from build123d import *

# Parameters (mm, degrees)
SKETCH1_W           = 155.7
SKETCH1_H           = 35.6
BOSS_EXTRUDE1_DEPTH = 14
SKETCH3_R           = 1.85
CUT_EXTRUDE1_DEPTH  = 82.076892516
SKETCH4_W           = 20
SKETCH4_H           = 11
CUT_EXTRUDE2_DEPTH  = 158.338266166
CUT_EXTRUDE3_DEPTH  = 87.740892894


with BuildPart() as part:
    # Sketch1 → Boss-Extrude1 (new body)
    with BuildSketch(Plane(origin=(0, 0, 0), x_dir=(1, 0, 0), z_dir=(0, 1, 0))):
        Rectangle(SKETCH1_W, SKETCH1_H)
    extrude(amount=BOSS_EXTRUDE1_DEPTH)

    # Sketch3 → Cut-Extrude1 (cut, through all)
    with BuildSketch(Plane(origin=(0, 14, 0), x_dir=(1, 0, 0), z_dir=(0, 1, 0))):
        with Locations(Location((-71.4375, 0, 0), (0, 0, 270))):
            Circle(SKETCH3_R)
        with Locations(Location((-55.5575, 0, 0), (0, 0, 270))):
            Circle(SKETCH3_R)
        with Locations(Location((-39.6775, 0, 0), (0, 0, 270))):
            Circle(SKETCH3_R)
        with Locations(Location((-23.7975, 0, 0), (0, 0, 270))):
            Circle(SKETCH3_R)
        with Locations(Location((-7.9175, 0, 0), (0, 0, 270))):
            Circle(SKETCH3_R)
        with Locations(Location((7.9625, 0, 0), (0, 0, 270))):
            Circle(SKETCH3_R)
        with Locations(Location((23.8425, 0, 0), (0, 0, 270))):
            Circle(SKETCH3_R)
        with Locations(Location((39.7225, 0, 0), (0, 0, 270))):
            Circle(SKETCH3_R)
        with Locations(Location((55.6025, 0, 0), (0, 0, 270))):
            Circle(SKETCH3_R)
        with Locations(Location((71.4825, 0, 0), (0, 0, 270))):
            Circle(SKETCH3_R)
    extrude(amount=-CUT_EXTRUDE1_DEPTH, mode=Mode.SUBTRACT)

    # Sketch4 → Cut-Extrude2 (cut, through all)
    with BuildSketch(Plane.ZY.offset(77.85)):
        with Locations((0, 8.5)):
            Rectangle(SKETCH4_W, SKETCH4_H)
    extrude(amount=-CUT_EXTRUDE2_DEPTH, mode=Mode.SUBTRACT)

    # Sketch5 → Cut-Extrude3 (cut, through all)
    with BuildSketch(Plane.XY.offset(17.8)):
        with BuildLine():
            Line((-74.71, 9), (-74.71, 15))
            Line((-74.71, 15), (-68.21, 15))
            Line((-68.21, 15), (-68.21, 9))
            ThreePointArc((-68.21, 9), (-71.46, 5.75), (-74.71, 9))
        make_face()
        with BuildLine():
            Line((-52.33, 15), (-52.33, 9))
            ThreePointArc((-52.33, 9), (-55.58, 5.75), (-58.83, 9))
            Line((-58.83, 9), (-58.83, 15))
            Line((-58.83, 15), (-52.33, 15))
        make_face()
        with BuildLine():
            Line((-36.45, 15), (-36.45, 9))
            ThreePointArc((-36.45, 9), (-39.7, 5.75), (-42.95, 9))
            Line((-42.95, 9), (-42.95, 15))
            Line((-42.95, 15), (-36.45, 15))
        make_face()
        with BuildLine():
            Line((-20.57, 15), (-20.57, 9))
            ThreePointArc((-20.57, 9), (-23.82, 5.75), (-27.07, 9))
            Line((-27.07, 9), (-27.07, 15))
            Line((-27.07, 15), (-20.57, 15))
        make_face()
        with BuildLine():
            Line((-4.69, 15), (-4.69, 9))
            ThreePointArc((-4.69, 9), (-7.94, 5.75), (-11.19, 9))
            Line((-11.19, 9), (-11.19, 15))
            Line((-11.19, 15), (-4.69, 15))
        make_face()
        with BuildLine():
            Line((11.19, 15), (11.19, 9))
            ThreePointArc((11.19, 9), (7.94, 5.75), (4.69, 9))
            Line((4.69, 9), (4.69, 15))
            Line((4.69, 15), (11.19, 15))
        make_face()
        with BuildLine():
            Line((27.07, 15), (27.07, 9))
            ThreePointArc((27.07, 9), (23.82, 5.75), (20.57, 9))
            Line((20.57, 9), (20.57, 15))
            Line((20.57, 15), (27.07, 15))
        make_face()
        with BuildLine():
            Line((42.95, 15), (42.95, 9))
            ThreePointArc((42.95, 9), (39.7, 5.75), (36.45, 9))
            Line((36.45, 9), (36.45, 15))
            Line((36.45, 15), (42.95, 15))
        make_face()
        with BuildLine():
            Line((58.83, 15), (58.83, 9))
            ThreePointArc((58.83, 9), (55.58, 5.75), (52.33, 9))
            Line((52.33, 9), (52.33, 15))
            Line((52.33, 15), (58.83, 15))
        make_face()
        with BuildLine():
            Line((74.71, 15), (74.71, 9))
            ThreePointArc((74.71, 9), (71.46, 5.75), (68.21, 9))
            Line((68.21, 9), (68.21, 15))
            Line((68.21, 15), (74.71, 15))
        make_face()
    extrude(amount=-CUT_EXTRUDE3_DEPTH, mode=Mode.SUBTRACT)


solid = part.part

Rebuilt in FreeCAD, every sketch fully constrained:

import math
import FreeCAD as App
import Part
import Sketcher

V = App.Vector
Q = App.Units.Quantity

doc = App.newDocument("Part")
body = doc.addObject("PartDesign::Body", "Body")

sketch1 = body.newObject("Sketcher::SketchObject", "Sketch")
sketch1.AttachmentSupport = (doc.getObject("XZ_Plane"), [""])
sketch1.MapMode = "FlatFace"
sketch1.addGeometry(Part.LineSegment(V(-78, -18, 0), V(-78, 18, 0)), False)
sketch1.addGeometry(Part.LineSegment(V(-78, 18, 0), V(78, 18, 0)), False)
sketch1.addGeometry(Part.LineSegment(V(78, 18, 0), V(78, -18, 0)), False)
sketch1.addGeometry(Part.LineSegment(V(78, -18, 0), V(-78, -18, 0)), False)
sketch1.addConstraint(Sketcher.Constraint("Coincident", 0, 2, 1, 1))
sketch1.addConstraint(Sketcher.Constraint("Coincident", 1, 2, 2, 1))
sketch1.addConstraint(Sketcher.Constraint("Coincident", 2, 2, 3, 1))
sketch1.addConstraint(Sketcher.Constraint("Coincident", 3, 2, 0, 1))
sketch1.addConstraint(Sketcher.Constraint("Vertical", 0))
sketch1.addConstraint(Sketcher.Constraint("Horizontal", 1))
sketch1.addConstraint(Sketcher.Constraint("Vertical", 2))
sketch1.addConstraint(Sketcher.Constraint("Horizontal", 3))
sketch1.addConstraint(Sketcher.Constraint("Symmetric", 0, 2, 2, 2, -1, 1))
sketch1.addConstraint(Sketcher.Constraint("DistanceX", 1, 1, 1, 2, Q("155.7 mm")))
sketch1.addConstraint(Sketcher.Constraint("DistanceY", 0, 1, 0, 2, Q("35.6 mm")))
pad1 = body.newObject("PartDesign::Pad", "Pad")
pad1.Profile = sketch1
pad1.Length = 14
pad1.Reversed = True

sketch2 = body.newObject("Sketcher::SketchObject", "Sketch001")
sketch2.AttachmentSupport = (doc.getObject("XZ_Plane"), [""])
sketch2.MapMode = "FlatFace"
sketch2.AttachmentOffset = App.Placement(V(0, 0, -14), App.Rotation())
sketch2.addGeometry(Part.Circle(V(-71.4, 0, 0), V(0, 0, 1), 1.9), False)
sketch2.addGeometry(Part.Circle(V(-55.6, 0, 0), V(0, 0, 1), 1.9), False)
sketch2.addGeometry(Part.Circle(V(-39.7, 0, 0), V(0, 0, 1), 1.9), False)
sketch2.addGeometry(Part.Circle(V(-23.8, 0, 0), V(0, 0, 1), 1.9), False)
sketch2.addGeometry(Part.Circle(V(-7.9, 0, 0), V(0, 0, 1), 1.9), False)
sketch2.addGeometry(Part.Circle(V(8, 0, 0), V(0, 0, 1), 1.9), False)
sketch2.addGeometry(Part.Circle(V(23.8, 0, 0), V(0, 0, 1), 1.9), False)
sketch2.addGeometry(Part.Circle(V(39.7, 0, 0), V(0, 0, 1), 1.9), False)
sketch2.addGeometry(Part.Circle(V(55.6, 0, 0), V(0, 0, 1), 1.9), False)
sketch2.addGeometry(Part.Circle(V(71.5, 0, 0), V(0, 0, 1), 1.9), False)
sketch2.addConstraint(Sketcher.Constraint("Equal", 0, 1))
sketch2.addConstraint(Sketcher.Constraint("Equal", 1, 2))
sketch2.addConstraint(Sketcher.Constraint("Equal", 2, 3))
sketch2.addConstraint(Sketcher.Constraint("Equal", 3, 4))
sketch2.addConstraint(Sketcher.Constraint("Equal", 4, 5))
sketch2.addConstraint(Sketcher.Constraint("Equal", 5, 6))
sketch2.addConstraint(Sketcher.Constraint("Equal", 6, 7))
sketch2.addConstraint(Sketcher.Constraint("Equal", 7, 8))
sketch2.addConstraint(Sketcher.Constraint("Equal", 8, 9))
sketch2.addConstraint(Sketcher.Constraint("PointOnObject", 0, 3, -1))
sketch2.addConstraint(Sketcher.Constraint("PointOnObject", 1, 3, -1))
sketch2.addConstraint(Sketcher.Constraint("PointOnObject", 2, 3, -1))
sketch2.addConstraint(Sketcher.Constraint("PointOnObject", 3, 3, -1))
sketch2.addConstraint(Sketcher.Constraint("PointOnObject", 4, 3, -1))
sketch2.addConstraint(Sketcher.Constraint("PointOnObject", 5, 3, -1))
sketch2.addConstraint(Sketcher.Constraint("PointOnObject", 6, 3, -1))
sketch2.addConstraint(Sketcher.Constraint("PointOnObject", 7, 3, -1))
sketch2.addConstraint(Sketcher.Constraint("PointOnObject", 8, 3, -1))
sketch2.addConstraint(Sketcher.Constraint("PointOnObject", 9, 3, -1))
sketch2.addConstraint(Sketcher.Constraint("Diameter", 0, Q("3.7 mm")))
sketch2.addConstraint(Sketcher.Constraint("DistanceX", 0, 3, 5, 3, Q("79.4 mm")))
sketch2.addConstraint(Sketcher.Constraint("DistanceX", 1, 3, 6, 3, Q("79.4 mm")))
sketch2.addConstraint(Sketcher.Constraint("DistanceX", 2, 3, 7, 3, Q("79.4 mm")))
sketch2.addConstraint(Sketcher.Constraint("DistanceX", 3, 3, 8, 3, Q("79.4 mm")))
sketch2.addConstraint(Sketcher.Constraint("DistanceX", 4, 3, 9, 3, Q("79.4 mm")))
sketch2.addConstraint(Sketcher.Constraint("DistanceX", 0, 3, 1, 3, Q("15.88 mm")))
sketch2.addConstraint(Sketcher.Constraint("DistanceX", 1, 3, 2, 3, Q("15.88 mm")))
sketch2.addConstraint(Sketcher.Constraint("DistanceX", 2, 3, 3, 3, Q("15.88 mm")))
sketch2.addConstraint(Sketcher.Constraint("DistanceX", 3, 3, 4, 3, Q("15.88 mm")))
sketch2.addConstraint(Sketcher.Constraint("DistanceX", 0, 3, -1, 1, Q("71.4375 mm")))
pocket1 = body.newObject("PartDesign::Pocket", "Pocket")
pocket1.Profile = sketch2
pocket1.Type = "ThroughAll"
pocket1.Reversed = True

sketch3 = body.newObject("Sketcher::SketchObject", "Sketch002")
sketch3.AttachmentSupport = (doc.getObject("YZ_Plane"), [""])
sketch3.MapMode = "FlatFace"
sketch3.AttachmentOffset = App.Placement(V(0, 0, -77.85), App.Rotation())
sketch3.addGeometry(Part.LineSegment(V(14, -10, 0), V(3, -10, 0)), False)
sketch3.addGeometry(Part.LineSegment(V(3, -10, 0), V(3, 10, 0)), False)
sketch3.addGeometry(Part.LineSegment(V(3, 10, 0), V(14, 10, 0)), False)
sketch3.addGeometry(Part.LineSegment(V(14, 10, 0), V(14, -10, 0)), False)
sketch3.addConstraint(Sketcher.Constraint("Coincident", 0, 2, 1, 1))
sketch3.addConstraint(Sketcher.Constraint("Coincident", 1, 2, 2, 1))
sketch3.addConstraint(Sketcher.Constraint("Coincident", 2, 2, 3, 1))
sketch3.addConstraint(Sketcher.Constraint("Coincident", 3, 2, 0, 1))
sketch3.addConstraint(Sketcher.Constraint("Horizontal", 0))
sketch3.addConstraint(Sketcher.Constraint("Vertical", 1))
sketch3.addConstraint(Sketcher.Constraint("Horizontal", 2))
sketch3.addConstraint(Sketcher.Constraint("Vertical", 3))
sketch3.addConstraint(Sketcher.Constraint("DistanceX", 0, 2, 0, 1, Q("11 mm")))
sketch3.addConstraint(Sketcher.Constraint("DistanceY", 1, 1, 1, 2, Q("20 mm")))
sketch3.addConstraint(Sketcher.Constraint("DistanceX", -1, 1, 0, 2, Q("3 mm")))
sketch3.addConstraint(Sketcher.Constraint("DistanceY", 0, 2, -1, 1, Q("10 mm")))
pocket2 = body.newObject("PartDesign::Pocket", "Pocket001")
pocket2.Profile = sketch3
pocket2.Type = "ThroughAll"
pocket2.Reversed = True

sketch4 = body.newObject("Sketcher::SketchObject", "Sketch003")
sketch4.AttachmentSupport = (doc.getObject("XY_Plane"), [""])
sketch4.MapMode = "FlatFace"
sketch4.AttachmentOffset = App.Placement(V(0, 0, 17.8), App.Rotation())
sketch4.addGeometry(Part.LineSegment(V(-74.7, 15, 0), V(-74.7, 9, 0)), False)
sketch4.addGeometry(Part.ArcOfCircle(Part.Circle(V(-71.5, 9, 0), V(0, 0, 1), 3.2), math.radians(180), math.radians(360)), False)
sketch4.addGeometry(Part.LineSegment(V(-68.2, 9, 0), V(-68.2, 15, 0)), False)
sketch4.addGeometry(Part.LineSegment(V(-68.2, 15, 0), V(-74.7, 15, 0)), False)
sketch4.addGeometry(Part.LineSegment(V(-52.3, 9, 0), V(-52.3, 15, 0)), False)
sketch4.addGeometry(Part.LineSegment(V(-52.3, 15, 0), V(-58.8, 15, 0)), False)
sketch4.addGeometry(Part.LineSegment(V(-58.8, 15, 0), V(-58.8, 9, 0)), False)
sketch4.addGeometry(Part.ArcOfCircle(Part.Circle(V(-55.6, 9, 0), V(0, 0, 1), 3.2), math.radians(180), math.radians(360)), False)
sketch4.addGeometry(Part.LineSegment(V(-36.5, 9, 0), V(-36.5, 15, 0)), False)
sketch4.addGeometry(Part.LineSegment(V(-36.5, 15, 0), V(-43, 15, 0)), False)
sketch4.addGeometry(Part.LineSegment(V(-43, 15, 0), V(-43, 9, 0)), False)
sketch4.addGeometry(Part.ArcOfCircle(Part.Circle(V(-39.7, 9, 0), V(0, 0, 1), 3.2), math.radians(180), math.radians(360)), False)
sketch4.addGeometry(Part.LineSegment(V(-20.6, 9, 0), V(-20.6, 15, 0)), False)
sketch4.addGeometry(Part.LineSegment(V(-20.6, 15, 0), V(-27.1, 15, 0)), False)
sketch4.addGeometry(Part.LineSegment(V(-27.1, 15, 0), V(-27.1, 9, 0)), False)
sketch4.addGeometry(Part.ArcOfCircle(Part.Circle(V(-23.8, 9, 0), V(0, 0, 1), 3.2), math.radians(180), math.radians(360)), False)
sketch4.addGeometry(Part.LineSegment(V(-4.7, 9, 0), V(-4.7, 15, 0)), False)
sketch4.addGeometry(Part.LineSegment(V(-4.7, 15, 0), V(-11.2, 15, 0)), False)
sketch4.addGeometry(Part.LineSegment(V(-11.2, 15, 0), V(-11.2, 9, 0)), False)
sketch4.addGeometry(Part.ArcOfCircle(Part.Circle(V(-7.9, 9, 0), V(0, 0, 1), 3.2), math.radians(180), math.radians(360)), False)
sketch4.addGeometry(Part.LineSegment(V(11.2, 9, 0), V(11.2, 15, 0)), False)
sketch4.addGeometry(Part.LineSegment(V(11.2, 15, 0), V(4.7, 15, 0)), False)
sketch4.addGeometry(Part.LineSegment(V(4.7, 15, 0), V(4.7, 9, 0)), False)
sketch4.addGeometry(Part.ArcOfCircle(Part.Circle(V(7.9, 9, 0), V(0, 0, 1), 3.2), math.radians(180), math.radians(360)), False)
sketch4.addGeometry(Part.LineSegment(V(27.1, 9, 0), V(27.1, 15, 0)), False)
sketch4.addGeometry(Part.LineSegment(V(27.1, 15, 0), V(20.6, 15, 0)), False)
sketch4.addGeometry(Part.LineSegment(V(20.6, 15, 0), V(20.6, 9, 0)), False)
sketch4.addGeometry(Part.ArcOfCircle(Part.Circle(V(23.8, 9, 0), V(0, 0, 1), 3.2), math.radians(180), math.radians(360)), False)
sketch4.addGeometry(Part.LineSegment(V(43, 9, 0), V(43, 15, 0)), False)
sketch4.addGeometry(Part.LineSegment(V(43, 15, 0), V(36.5, 15, 0)), False)
sketch4.addGeometry(Part.LineSegment(V(36.5, 15, 0), V(36.5, 9, 0)), False)
sketch4.addGeometry(Part.ArcOfCircle(Part.Circle(V(39.7, 9, 0), V(0, 0, 1), 3.2), math.radians(180), math.radians(360)), False)
sketch4.addGeometry(Part.LineSegment(V(58.8, 9, 0), V(58.8, 15, 0)), False)
sketch4.addGeometry(Part.LineSegment(V(58.8, 15, 0), V(52.3, 15, 0)), False)
sketch4.addGeometry(Part.LineSegment(V(52.3, 15, 0), V(52.3, 9, 0)), False)
sketch4.addGeometry(Part.ArcOfCircle(Part.Circle(V(55.6, 9, 0), V(0, 0, 1), 3.2), math.radians(180), math.radians(360)), False)
sketch4.addGeometry(Part.LineSegment(V(74.7, 9, 0), V(74.7, 15, 0)), False)
sketch4.addGeometry(Part.LineSegment(V(74.7, 15, 0), V(68.2, 15, 0)), False)
sketch4.addGeometry(Part.LineSegment(V(68.2, 15, 0), V(68.2, 9, 0)), False)
sketch4.addGeometry(Part.ArcOfCircle(Part.Circle(V(71.5, 9, 0), V(0, 0, 1), 3.2), math.radians(180), math.radians(360)), False)
sketch4.addConstraint(Sketcher.Constraint("Tangent", 0, 2, 1, 1))
sketch4.addConstraint(Sketcher.Constraint("Tangent", 1, 2, 2, 1))
sketch4.addConstraint(Sketcher.Constraint("Coincident", 2, 2, 3, 1))
sketch4.addConstraint(Sketcher.Constraint("Coincident", 3, 2, 0, 1))
sketch4.addConstraint(Sketcher.Constraint("Coincident", 4, 2, 5, 1))
sketch4.addConstraint(Sketcher.Constraint("Coincident", 5, 2, 6, 1))
sketch4.addConstraint(Sketcher.Constraint("Tangent", 6, 2, 7, 1))
sketch4.addConstraint(Sketcher.Constraint("Tangent", 7, 2, 4, 1))
sketch4.addConstraint(Sketcher.Constraint("Coincident", 8, 2, 9, 1))
sketch4.addConstraint(Sketcher.Constraint("Coincident", 9, 2, 10, 1))
sketch4.addConstraint(Sketcher.Constraint("Tangent", 10, 2, 11, 1))
sketch4.addConstraint(Sketcher.Constraint("Tangent", 11, 2, 8, 1))
sketch4.addConstraint(Sketcher.Constraint("Coincident", 12, 2, 13, 1))
sketch4.addConstraint(Sketcher.Constraint("Coincident", 13, 2, 14, 1))
sketch4.addConstraint(Sketcher.Constraint("Tangent", 14, 2, 15, 1))
sketch4.addConstraint(Sketcher.Constraint("Tangent", 15, 2, 12, 1))
sketch4.addConstraint(Sketcher.Constraint("Coincident", 16, 2, 17, 1))
sketch4.addConstraint(Sketcher.Constraint("Coincident", 17, 2, 18, 1))
sketch4.addConstraint(Sketcher.Constraint("Tangent", 18, 2, 19, 1))
sketch4.addConstraint(Sketcher.Constraint("Tangent", 19, 2, 16, 1))
sketch4.addConstraint(Sketcher.Constraint("Coincident", 20, 2, 21, 1))
sketch4.addConstraint(Sketcher.Constraint("Coincident", 21, 2, 22, 1))
sketch4.addConstraint(Sketcher.Constraint("Tangent", 22, 2, 23, 1))
sketch4.addConstraint(Sketcher.Constraint("Tangent", 23, 2, 20, 1))
sketch4.addConstraint(Sketcher.Constraint("Coincident", 24, 2, 25, 1))
sketch4.addConstraint(Sketcher.Constraint("Coincident", 25, 2, 26, 1))
sketch4.addConstraint(Sketcher.Constraint("Tangent", 26, 2, 27, 1))
sketch4.addConstraint(Sketcher.Constraint("Tangent", 27, 2, 24, 1))
sketch4.addConstraint(Sketcher.Constraint("Coincident", 28, 2, 29, 1))
sketch4.addConstraint(Sketcher.Constraint("Coincident", 29, 2, 30, 1))
sketch4.addConstraint(Sketcher.Constraint("Tangent", 30, 2, 31, 1))
sketch4.addConstraint(Sketcher.Constraint("Tangent", 31, 2, 28, 1))
sketch4.addConstraint(Sketcher.Constraint("Coincident", 32, 2, 33, 1))
sketch4.addConstraint(Sketcher.Constraint("Coincident", 33, 2, 34, 1))
sketch4.addConstraint(Sketcher.Constraint("Tangent", 34, 2, 35, 1))
sketch4.addConstraint(Sketcher.Constraint("Tangent", 35, 2, 32, 1))
sketch4.addConstraint(Sketcher.Constraint("Coincident", 36, 2, 37, 1))
sketch4.addConstraint(Sketcher.Constraint("Coincident", 37, 2, 38, 1))
sketch4.addConstraint(Sketcher.Constraint("Tangent", 38, 2, 39, 1))
sketch4.addConstraint(Sketcher.Constraint("Tangent", 39, 2, 36, 1))
sketch4.addConstraint(Sketcher.Constraint("Vertical", 0))
sketch4.addConstraint(Sketcher.Constraint("Vertical", 2))
sketch4.addConstraint(Sketcher.Constraint("Horizontal", 3))
sketch4.addConstraint(Sketcher.Constraint("Vertical", 4))
sketch4.addConstraint(Sketcher.Constraint("Horizontal", 5))
sketch4.addConstraint(Sketcher.Constraint("Vertical", 6))
sketch4.addConstraint(Sketcher.Constraint("Vertical", 8))
sketch4.addConstraint(Sketcher.Constraint("Horizontal", 9))
sketch4.addConstraint(Sketcher.Constraint("Vertical", 10))
sketch4.addConstraint(Sketcher.Constraint("Vertical", 12))
sketch4.addConstraint(Sketcher.Constraint("Horizontal", 13))
sketch4.addConstraint(Sketcher.Constraint("Vertical", 14))
sketch4.addConstraint(Sketcher.Constraint("Vertical", 16))
sketch4.addConstraint(Sketcher.Constraint("Horizontal", 17))
sketch4.addConstraint(Sketcher.Constraint("Vertical", 18))
sketch4.addConstraint(Sketcher.Constraint("Vertical", 20))
sketch4.addConstraint(Sketcher.Constraint("Horizontal", 21))
sketch4.addConstraint(Sketcher.Constraint("Vertical", 22))
sketch4.addConstraint(Sketcher.Constraint("Vertical", 24))
sketch4.addConstraint(Sketcher.Constraint("Horizontal", 25))
sketch4.addConstraint(Sketcher.Constraint("Vertical", 26))
sketch4.addConstraint(Sketcher.Constraint("Vertical", 28))
sketch4.addConstraint(Sketcher.Constraint("Horizontal", 29))
sketch4.addConstraint(Sketcher.Constraint("Vertical", 30))
sketch4.addConstraint(Sketcher.Constraint("Vertical", 32))
sketch4.addConstraint(Sketcher.Constraint("Horizontal", 33))
sketch4.addConstraint(Sketcher.Constraint("Vertical", 34))
sketch4.addConstraint(Sketcher.Constraint("Vertical", 36))
sketch4.addConstraint(Sketcher.Constraint("Horizontal", 37))
sketch4.addConstraint(Sketcher.Constraint("Vertical", 38))
sketch4.addConstraint(Sketcher.Constraint("Equal", 1, 7))
sketch4.addConstraint(Sketcher.Constraint("Equal", 7, 11))
sketch4.addConstraint(Sketcher.Constraint("Equal", 11, 15))
sketch4.addConstraint(Sketcher.Constraint("Equal", 15, 19))
sketch4.addConstraint(Sketcher.Constraint("Equal", 19, 23))
sketch4.addConstraint(Sketcher.Constraint("Equal", 23, 27))
sketch4.addConstraint(Sketcher.Constraint("Equal", 27, 31))
sketch4.addConstraint(Sketcher.Constraint("Equal", 31, 35))
sketch4.addConstraint(Sketcher.Constraint("Equal", 35, 39))
sketch4.addConstraint(Sketcher.Constraint("Symmetric", 19, 3, 23, 3, -2))
sketch4.addConstraint(Sketcher.Constraint("Symmetric", 15, 3, 27, 3, -2))
sketch4.addConstraint(Sketcher.Constraint("Symmetric", 11, 3, 31, 3, -2))
sketch4.addConstraint(Sketcher.Constraint("Symmetric", 7, 3, 35, 3, -2))
sketch4.addConstraint(Sketcher.Constraint("Symmetric", 1, 3, 39, 3, -2))
sketch4.addConstraint(Sketcher.Constraint("Horizontal", 1, 3, 7, 3))
sketch4.addConstraint(Sketcher.Constraint("Horizontal", 7, 3, 11, 3))
sketch4.addConstraint(Sketcher.Constraint("Horizontal", 11, 3, 15, 3))
sketch4.addConstraint(Sketcher.Constraint("Horizontal", 15, 3, 19, 3))
sketch4.addConstraint(Sketcher.Constraint("Horizontal", 3, 2, 4, 2))
sketch4.addConstraint(Sketcher.Constraint("Horizontal", 5, 2, 8, 2))
sketch4.addConstraint(Sketcher.Constraint("Horizontal", 9, 2, 12, 2))
sketch4.addConstraint(Sketcher.Constraint("Horizontal", 13, 2, 16, 2))
sketch4.addConstraint(Sketcher.Constraint("Horizontal", 17, 2, 20, 2))
sketch4.addConstraint(Sketcher.Constraint("Horizontal", 21, 2, 24, 2))
sketch4.addConstraint(Sketcher.Constraint("Horizontal", 25, 2, 28, 2))
sketch4.addConstraint(Sketcher.Constraint("Horizontal", 29, 2, 32, 2))
sketch4.addConstraint(Sketcher.Constraint("Horizontal", 33, 2, 36, 2))
sketch4.addConstraint(Sketcher.Constraint("DistanceY", 0, 2, 0, 1, Q("6 mm")))
sketch4.addConstraint(Sketcher.Constraint("Radius", 1, Q("3.25 mm")))
sketch4.addConstraint(Sketcher.Constraint("DistanceY", -1, 1, 1, 3, Q("9 mm")))
sketch4.addConstraint(Sketcher.Constraint("DistanceX", 11, 3, -1, 1, Q("39.7 mm")))
sketch4.addConstraint(Sketcher.Constraint("DistanceX", 1, 3, 23, 3, Q("79.4 mm")))
sketch4.addConstraint(Sketcher.Constraint("DistanceX", 7, 3, 27, 3, Q("79.4 mm")))
sketch4.addConstraint(Sketcher.Constraint("DistanceX", 1, 3, -1, 1, Q("71.46 mm")))
sketch4.addConstraint(Sketcher.Constraint("DistanceX", 7, 3, -1, 1, Q("55.58 mm")))
pocket3 = body.newObject("PartDesign::Pocket", "Pocket002")
pocket3.Profile = sketch4
pocket3.Type = "ThroughAll"

doc.recompute()
